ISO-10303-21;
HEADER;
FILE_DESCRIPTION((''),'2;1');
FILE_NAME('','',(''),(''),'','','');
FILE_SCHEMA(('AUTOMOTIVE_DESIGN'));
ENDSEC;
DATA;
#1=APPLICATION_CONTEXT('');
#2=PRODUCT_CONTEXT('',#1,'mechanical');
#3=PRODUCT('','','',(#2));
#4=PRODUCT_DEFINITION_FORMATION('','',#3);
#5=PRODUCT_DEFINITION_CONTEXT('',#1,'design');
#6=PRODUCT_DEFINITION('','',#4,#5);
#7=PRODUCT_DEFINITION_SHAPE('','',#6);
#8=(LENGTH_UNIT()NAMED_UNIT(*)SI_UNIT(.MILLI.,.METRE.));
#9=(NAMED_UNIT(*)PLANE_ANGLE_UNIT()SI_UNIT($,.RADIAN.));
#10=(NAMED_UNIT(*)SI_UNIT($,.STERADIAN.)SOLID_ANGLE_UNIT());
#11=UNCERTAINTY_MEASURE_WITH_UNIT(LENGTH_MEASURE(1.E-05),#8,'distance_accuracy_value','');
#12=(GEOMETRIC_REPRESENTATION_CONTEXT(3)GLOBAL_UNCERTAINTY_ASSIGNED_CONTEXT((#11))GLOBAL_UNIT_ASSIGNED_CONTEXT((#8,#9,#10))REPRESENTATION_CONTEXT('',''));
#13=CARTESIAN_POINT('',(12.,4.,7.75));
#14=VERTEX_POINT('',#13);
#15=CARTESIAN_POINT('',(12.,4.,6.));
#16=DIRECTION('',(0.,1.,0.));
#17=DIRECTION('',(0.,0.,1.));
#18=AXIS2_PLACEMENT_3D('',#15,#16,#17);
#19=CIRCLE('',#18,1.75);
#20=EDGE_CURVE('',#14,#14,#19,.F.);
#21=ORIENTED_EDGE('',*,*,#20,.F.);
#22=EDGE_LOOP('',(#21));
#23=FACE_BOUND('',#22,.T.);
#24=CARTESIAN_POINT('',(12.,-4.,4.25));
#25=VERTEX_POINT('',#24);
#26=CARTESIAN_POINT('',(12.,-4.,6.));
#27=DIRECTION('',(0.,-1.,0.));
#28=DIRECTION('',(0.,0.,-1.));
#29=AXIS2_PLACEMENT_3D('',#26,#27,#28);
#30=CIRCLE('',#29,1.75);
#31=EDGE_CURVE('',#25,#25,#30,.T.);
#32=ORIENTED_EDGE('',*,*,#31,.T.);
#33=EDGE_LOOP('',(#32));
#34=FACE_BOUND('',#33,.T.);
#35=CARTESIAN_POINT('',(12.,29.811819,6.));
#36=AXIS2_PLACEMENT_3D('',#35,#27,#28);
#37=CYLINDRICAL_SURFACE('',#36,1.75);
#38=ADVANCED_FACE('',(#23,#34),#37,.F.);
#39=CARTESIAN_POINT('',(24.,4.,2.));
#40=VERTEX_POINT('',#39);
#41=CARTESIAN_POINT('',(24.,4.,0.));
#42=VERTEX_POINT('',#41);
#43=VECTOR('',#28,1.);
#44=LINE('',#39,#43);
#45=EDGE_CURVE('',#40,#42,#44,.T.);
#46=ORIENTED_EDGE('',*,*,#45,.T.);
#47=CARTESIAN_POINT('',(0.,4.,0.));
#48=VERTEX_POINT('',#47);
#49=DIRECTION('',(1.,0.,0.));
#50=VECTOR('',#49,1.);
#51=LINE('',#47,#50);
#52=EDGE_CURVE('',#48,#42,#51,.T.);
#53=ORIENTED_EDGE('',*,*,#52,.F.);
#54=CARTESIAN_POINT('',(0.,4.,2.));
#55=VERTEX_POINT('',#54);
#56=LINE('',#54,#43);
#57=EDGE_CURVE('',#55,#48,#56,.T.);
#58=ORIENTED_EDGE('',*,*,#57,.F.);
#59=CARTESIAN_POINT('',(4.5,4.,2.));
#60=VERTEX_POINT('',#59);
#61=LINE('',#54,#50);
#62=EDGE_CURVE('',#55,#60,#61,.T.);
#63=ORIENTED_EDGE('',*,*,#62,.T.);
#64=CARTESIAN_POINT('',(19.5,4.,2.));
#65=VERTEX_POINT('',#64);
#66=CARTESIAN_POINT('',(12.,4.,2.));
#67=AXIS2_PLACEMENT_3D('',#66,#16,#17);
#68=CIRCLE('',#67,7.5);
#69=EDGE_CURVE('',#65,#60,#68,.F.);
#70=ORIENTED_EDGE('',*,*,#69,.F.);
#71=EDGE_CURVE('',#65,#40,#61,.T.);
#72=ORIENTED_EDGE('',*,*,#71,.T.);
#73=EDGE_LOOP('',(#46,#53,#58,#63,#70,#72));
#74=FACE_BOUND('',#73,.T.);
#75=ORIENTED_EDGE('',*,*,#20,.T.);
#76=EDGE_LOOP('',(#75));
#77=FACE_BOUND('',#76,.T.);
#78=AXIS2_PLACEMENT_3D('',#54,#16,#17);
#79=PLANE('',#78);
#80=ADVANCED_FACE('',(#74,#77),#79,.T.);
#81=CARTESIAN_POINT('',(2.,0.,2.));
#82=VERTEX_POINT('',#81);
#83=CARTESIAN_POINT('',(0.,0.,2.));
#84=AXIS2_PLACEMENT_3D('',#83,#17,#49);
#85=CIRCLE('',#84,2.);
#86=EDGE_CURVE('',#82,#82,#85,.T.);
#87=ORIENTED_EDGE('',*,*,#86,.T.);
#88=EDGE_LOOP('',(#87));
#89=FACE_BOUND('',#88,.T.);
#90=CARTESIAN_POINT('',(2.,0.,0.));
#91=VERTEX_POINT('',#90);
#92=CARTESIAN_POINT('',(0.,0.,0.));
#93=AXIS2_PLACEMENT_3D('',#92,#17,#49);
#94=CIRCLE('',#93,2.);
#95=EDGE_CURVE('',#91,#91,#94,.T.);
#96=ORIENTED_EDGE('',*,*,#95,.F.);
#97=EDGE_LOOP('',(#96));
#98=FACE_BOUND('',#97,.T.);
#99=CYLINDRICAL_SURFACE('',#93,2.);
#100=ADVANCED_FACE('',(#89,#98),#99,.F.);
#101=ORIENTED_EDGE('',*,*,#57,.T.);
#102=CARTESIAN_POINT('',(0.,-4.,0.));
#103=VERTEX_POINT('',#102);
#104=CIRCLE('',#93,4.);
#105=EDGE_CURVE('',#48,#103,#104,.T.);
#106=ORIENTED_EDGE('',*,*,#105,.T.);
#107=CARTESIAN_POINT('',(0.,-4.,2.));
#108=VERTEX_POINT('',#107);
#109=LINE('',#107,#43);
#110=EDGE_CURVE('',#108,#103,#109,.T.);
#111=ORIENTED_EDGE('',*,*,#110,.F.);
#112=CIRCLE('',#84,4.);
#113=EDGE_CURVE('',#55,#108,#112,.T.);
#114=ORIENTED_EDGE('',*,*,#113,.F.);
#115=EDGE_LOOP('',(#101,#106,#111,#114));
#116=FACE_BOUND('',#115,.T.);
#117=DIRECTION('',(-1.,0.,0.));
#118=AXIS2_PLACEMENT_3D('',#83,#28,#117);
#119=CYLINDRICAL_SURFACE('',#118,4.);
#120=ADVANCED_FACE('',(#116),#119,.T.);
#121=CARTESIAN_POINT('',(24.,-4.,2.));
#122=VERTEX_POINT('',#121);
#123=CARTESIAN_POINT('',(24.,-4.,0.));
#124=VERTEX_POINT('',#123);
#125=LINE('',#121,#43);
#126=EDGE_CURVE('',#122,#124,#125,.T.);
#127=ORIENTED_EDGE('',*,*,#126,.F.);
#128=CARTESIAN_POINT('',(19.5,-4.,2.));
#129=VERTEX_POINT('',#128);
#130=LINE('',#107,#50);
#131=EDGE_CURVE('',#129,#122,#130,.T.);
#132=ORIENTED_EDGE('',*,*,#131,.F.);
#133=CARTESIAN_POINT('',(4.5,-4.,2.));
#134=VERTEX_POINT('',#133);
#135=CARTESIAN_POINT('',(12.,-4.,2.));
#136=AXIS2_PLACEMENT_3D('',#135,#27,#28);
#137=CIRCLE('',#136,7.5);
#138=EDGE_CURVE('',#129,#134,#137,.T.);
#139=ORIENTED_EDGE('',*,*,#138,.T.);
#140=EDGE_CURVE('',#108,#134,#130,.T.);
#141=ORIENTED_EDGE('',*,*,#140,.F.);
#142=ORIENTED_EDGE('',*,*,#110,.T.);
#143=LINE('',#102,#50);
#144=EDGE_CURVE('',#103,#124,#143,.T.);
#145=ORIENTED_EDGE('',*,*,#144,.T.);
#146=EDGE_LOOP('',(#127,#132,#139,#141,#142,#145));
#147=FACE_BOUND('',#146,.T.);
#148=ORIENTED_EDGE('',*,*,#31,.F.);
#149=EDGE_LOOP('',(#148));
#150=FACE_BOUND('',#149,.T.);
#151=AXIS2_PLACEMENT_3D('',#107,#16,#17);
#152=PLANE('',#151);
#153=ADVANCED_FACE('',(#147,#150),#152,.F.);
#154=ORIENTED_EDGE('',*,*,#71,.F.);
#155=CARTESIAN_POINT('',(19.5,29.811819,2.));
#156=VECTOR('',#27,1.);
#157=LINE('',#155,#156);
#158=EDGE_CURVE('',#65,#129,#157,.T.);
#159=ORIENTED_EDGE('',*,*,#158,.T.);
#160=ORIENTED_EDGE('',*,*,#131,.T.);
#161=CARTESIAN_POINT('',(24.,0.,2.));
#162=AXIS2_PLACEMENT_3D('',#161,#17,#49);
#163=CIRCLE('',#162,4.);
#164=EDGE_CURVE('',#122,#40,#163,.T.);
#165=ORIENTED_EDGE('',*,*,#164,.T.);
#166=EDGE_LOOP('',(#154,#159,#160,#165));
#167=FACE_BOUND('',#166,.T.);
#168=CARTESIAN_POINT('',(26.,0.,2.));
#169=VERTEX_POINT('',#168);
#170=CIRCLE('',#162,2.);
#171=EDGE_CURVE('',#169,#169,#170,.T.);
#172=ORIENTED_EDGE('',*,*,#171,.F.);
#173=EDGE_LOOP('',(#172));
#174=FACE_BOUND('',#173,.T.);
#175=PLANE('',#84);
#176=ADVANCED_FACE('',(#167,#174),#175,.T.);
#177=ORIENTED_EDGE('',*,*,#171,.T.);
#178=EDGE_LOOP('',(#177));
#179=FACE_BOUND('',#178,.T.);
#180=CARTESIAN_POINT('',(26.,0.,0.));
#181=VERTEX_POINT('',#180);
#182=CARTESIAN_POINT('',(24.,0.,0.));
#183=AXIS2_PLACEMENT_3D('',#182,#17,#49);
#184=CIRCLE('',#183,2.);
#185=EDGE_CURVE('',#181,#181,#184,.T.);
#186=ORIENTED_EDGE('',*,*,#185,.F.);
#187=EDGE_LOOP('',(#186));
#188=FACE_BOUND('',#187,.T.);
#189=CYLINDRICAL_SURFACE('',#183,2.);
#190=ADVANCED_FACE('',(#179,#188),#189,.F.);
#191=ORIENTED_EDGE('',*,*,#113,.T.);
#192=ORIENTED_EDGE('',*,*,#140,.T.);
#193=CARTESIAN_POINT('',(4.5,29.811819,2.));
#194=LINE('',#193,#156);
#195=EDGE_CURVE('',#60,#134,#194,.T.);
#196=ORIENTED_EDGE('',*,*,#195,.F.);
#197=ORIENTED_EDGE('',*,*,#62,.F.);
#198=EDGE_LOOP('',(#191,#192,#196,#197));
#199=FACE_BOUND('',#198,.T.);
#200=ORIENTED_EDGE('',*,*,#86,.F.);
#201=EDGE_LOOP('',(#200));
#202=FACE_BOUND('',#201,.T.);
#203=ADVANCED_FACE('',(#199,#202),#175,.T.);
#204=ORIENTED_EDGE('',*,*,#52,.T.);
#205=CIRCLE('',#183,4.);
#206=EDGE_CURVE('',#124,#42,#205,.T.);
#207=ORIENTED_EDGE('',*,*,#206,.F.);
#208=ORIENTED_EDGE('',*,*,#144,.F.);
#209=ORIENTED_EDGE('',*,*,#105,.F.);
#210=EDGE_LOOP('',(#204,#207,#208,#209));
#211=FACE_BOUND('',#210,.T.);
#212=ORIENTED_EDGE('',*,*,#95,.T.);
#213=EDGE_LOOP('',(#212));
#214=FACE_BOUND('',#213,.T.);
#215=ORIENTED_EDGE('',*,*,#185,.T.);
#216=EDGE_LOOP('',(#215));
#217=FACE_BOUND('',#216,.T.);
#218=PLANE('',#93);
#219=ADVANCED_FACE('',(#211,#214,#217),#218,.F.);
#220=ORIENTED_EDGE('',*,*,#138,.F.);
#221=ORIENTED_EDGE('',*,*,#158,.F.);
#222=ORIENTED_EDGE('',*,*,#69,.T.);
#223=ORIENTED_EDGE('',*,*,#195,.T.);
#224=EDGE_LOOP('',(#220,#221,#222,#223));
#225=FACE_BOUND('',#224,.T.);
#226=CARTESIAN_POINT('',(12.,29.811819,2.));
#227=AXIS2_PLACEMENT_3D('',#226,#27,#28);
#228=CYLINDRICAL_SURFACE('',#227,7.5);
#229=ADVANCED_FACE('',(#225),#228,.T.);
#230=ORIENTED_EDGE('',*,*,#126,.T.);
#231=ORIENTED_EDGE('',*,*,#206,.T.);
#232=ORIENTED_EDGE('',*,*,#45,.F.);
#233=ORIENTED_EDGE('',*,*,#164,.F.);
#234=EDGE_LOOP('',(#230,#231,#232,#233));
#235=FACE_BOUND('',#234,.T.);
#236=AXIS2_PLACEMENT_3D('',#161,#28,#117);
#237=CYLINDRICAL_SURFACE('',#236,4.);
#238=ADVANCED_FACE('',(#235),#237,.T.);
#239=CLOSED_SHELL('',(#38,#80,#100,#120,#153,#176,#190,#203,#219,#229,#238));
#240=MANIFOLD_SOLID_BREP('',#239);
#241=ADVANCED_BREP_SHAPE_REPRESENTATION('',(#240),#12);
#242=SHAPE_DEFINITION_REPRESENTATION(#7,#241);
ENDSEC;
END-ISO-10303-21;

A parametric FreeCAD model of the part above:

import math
import FreeCAD as App
import Part
import Sketcher

doc = App.newDocument("Part")
params = doc.addObject("Spreadsheet::Sheet", "Params")
for row, (alias, value) in enumerate([
    ("sketch1_radius", "4 mm"),
    ("sketch1_width", "24 mm"),
    ("pad1_length", "2 mm"),
    ("sketch2_diameter", "3.5 mm"),
    ("sketch2_radius", "7.5 mm"),
    ("pad2_length", "8 mm"),
    ("sketch3_diameter", "4 mm"),
], start=1):
    params.set(f"A{row}", alias)
    params.set(f"B{row}", "=" + value)
    params.setAlias(f"B{row}", alias)

body = doc.addObject("PartDesign::Body", "Body")

# Sketch on XY plane
sketch1 = doc.addObject("Sketcher::SketchObject", "Sketch")
body.addObject(sketch1)
sketch1.AttachmentSupport = (doc.XY_Plane, [""])
sketch1.MapMode = "FlatFace"
sketch1.addGeometry([
    Part.LineSegment(App.Vector(0, -4, 0), App.Vector(24, -4, 0)),  # 0
    Part.ArcOfCircle(Part.Circle(App.Vector(24, 0, 0), App.Vector(0, 0, 1), 4), math.radians(-90), math.radians(0)),  # 1
    Part.ArcOfCircle(Part.Circle(App.Vector(24, 0, 0), App.Vector(0, 0, 1), 4), math.radians(0), math.radians(90)),  # 2
    Part.LineSegment(App.Vector(24, 4, 0), App.Vector(0, 4, 0)),  # 3
    Part.ArcOfCircle(Part.Circle(App.Vector(0, 0, 0), App.Vector(0, 0, 1), 4), math.radians(90), math.radians(270)),  # 4
], False)
sketch1.addConstraint([
    Sketcher.Constraint("Tangent", 0, 2, 1, 1),
    Sketcher.Constraint("Tangent", 1, 2, 2, 1),
    Sketcher.Constraint("Tangent", 2, 2, 3, 1),
    Sketcher.Constraint("Tangent", 3, 2, 4, 1),
    Sketcher.Constraint("Tangent", 4, 2, 0, 1),
    Sketcher.Constraint("Horizontal", 0),
    Sketcher.Constraint("Horizontal", 3),
    Sketcher.Constraint("Coincident", 4, 3, -1, 1),
    Sketcher.Constraint("Equal", 1, 2),
    Sketcher.Constraint("PointOnObject", 1, 2, -1),
    Sketcher.Constraint("Radius", 1, 4.0),
    Sketcher.Constraint("DistanceX", 0, 1, 0, 2, 24.0),
])
sketch1.setExpression("Constraints[10]", "Params.sketch1_radius")
sketch1.setExpression("Constraints[11]", "Params.sketch1_width")
pad1 = doc.addObject("PartDesign::Pad", "Pad")
body.addObject(pad1)
pad1.Profile = sketch1
pad1.setExpression("Length", "Params.pad1_length")

# Sketch on XZ plane
sketch2 = doc.addObject("Sketcher::SketchObject", "Sketch001")
body.addObject(sketch2)
sketch2.AttachmentSupport = (doc.XZ_Plane, [""])
sketch2.MapMode = "FlatFace"
sketch2.AttachmentOffset = App.Placement(App.Vector(0, 0, 4), App.Rotation())
sketch2.addGeometry([
    Part.LineSegment(App.Vector(4.5, 2, 0), App.Vector(19.5, 2, 0)),
    Part.ArcOfCircle(Part.Circle(App.Vector(12, 2, 0), App.Vector(0, 0, 1), 7.5), math.radians(0), math.radians(180)),
    Part.Circle(App.Vector(12, 6, 0), App.Vector(0, 0, 1), 1.75),
], False)
sketch2.addConstraint([
    Sketcher.Constraint("Coincident", 0, 1, 1, 2),
    Sketcher.Constraint("Coincident", 1, 1, 0, 2),
    Sketcher.Constraint("Horizontal", 0),
    Sketcher.Constraint("Horizontal", 1, 3, 0, 1),
    Sketcher.Constraint("Vertical", 1, 3, 2, 3),
    Sketcher.Constraint("Diameter", 2, 3.5),
    Sketcher.Constraint("Radius", 1, 7.5),
    Sketcher.Constraint("DistanceX", -1, 1, 1, 3, 12.0),
    Sketcher.Constraint("DistanceY", -1, 1, 1, 3, 2.0),
    Sketcher.Constraint("DistanceY", -1, 1, 2, 3, 6.0),
])
sketch2.setExpression("Constraints[5]", "Params.sketch2_diameter")
sketch2.setExpression("Constraints[6]", "Params.sketch2_radius")
pad2 = doc.addObject("PartDesign::Pad", "Pad001")
body.addObject(pad2)
pad2.Profile = sketch2
pad2.setExpression("Length", "Params.pad2_length")
pad2.Reversed = True

# Sketch on XY plane
sketch3 = doc.addObject("Sketcher::SketchObject", "Sketch002")
body.addObject(sketch3)
sketch3.AttachmentSupport = (doc.XY_Plane, [""])
sketch3.MapMode = "FlatFace"
sketch3.AttachmentOffset = App.Placement(App.Vector(0, 0, 2), App.Rotation())
sketch3.addGeometry([
    Part.Circle(App.Vector(0, 0, 0), App.Vector(0, 0, 1), 2),
    Part.Circle(App.Vector(24, 0, 0), App.Vector(0, 0, 1), 2),
], False)
sketch3.addConstraint([
    Sketcher.Constraint("Coincident", 0, 3, -1, 1),
    Sketcher.Constraint("Equal", 0, 1),
    Sketcher.Constraint("PointOnObject", 1, 3, -1),
    Sketcher.Constraint("Diameter", 0, 4.0),
    Sketcher.Constraint("DistanceX", -1, 1, 1, 3, 24.0),
])
sketch3.setExpression("Constraints[3]", "Params.sketch3_diameter")
pocket1 = doc.addObject("PartDesign::Pocket", "Pocket")
body.addObject(pocket1)
pocket1.Profile = sketch3
pocket1.Type = "ThroughAll"

doc.recompute()
